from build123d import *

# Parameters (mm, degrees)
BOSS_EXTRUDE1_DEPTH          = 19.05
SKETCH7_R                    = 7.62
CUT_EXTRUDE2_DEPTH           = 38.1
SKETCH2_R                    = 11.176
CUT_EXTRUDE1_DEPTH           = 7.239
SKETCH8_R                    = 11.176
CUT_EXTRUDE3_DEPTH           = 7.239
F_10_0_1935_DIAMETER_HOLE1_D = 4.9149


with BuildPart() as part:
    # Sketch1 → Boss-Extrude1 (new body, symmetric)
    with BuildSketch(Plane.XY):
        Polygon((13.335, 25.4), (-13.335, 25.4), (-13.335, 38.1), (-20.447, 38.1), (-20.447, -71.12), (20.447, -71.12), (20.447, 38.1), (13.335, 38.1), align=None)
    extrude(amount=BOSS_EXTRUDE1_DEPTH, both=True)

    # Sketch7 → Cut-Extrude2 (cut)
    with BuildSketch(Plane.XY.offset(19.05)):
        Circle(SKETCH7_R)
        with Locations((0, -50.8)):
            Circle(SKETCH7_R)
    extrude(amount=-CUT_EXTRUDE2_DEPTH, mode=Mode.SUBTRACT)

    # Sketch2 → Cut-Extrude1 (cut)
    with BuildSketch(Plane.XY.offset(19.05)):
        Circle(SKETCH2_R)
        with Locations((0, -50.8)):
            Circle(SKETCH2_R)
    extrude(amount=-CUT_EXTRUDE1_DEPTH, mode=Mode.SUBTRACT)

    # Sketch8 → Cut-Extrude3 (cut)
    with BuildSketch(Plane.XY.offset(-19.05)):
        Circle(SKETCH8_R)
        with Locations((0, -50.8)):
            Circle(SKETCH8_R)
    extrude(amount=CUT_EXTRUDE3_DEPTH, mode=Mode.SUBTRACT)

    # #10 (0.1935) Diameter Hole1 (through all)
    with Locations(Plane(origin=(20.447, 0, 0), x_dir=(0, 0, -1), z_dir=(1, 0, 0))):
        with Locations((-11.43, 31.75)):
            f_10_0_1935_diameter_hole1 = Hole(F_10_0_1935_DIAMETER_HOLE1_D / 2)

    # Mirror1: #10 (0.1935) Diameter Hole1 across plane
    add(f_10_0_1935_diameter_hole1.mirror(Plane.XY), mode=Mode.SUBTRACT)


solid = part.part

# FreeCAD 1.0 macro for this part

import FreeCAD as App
import Part
import Sketcher
Q = App.Units.Quantity

doc = App.newDocument("Part")
params = doc.addObject("Spreadsheet::Sheet", "Params")
for row, (alias, value) in enumerate([
    ("sketch1_height", "0.5 in"),
    ("sketch1_height2", "4.3 in"),
    ("sketch1_width", "1.05 in"),
    ("sketch1_width2", "0.28 in"),
    ("pad1_length", "1.5 in"),
    ("sketch2_diameter", "0.6 in"),
    ("pocket1_length", "1.5 in"),
    ("sketch3_diameter", "0.88 in"),
    ("pocket2_length", "0.285 in"),
    ("sketch4_diameter", "0.88 in"),
    ("pocket3_length", "0.285 in"),
    ("hole_diameter", "0.1935 in"),
], start=1):
    params.set(f"A{row}", alias)
    params.set(f"B{row}", "=" + value)
    params.setAlias(f"B{row}", alias)

body = doc.addObject("PartDesign::Body", "Body")

# Sketch on XY plane
sketch1 = doc.addObject("Sketcher::SketchObject", "Sketch")
body.addObject(sketch1)
sketch1.AttachmentSupport = (doc.XY_Plane, [""])
sketch1.MapMode = "FlatFace"
sketch1.addGeometry(Part.LineSegment(App.Vector(13.335, 25.4, 0), App.Vector(-13.335, 25.4, 0)), False)
sketch1.addGeometry(Part.LineSegment(App.Vector(-13.335, 25.4, 0), App.Vector(-13.335, 38.1, 0)), False)
sketch1.addGeometry(Part.LineSegment(App.Vector(-13.335, 38.1, 0), App.Vector(-20.447, 38.1, 0)), False)
sketch1.addGeometry(Part.LineSegment(App.Vector(-20.447, 38.1, 0), App.Vector(-20.447, -71.12, 0)), False)
sketch1.addGeometry(Part.LineSegment(App.Vector(-20.447, -71.12, 0), App.Vector(20.447, -71.12, 0)), False)
sketch1.addGeometry(Part.LineSegment(App.Vector(20.447, -71.12, 0), App.Vector(20.447, 38.1, 0)), False)
sketch1.addGeometry(Part.LineSegment(App.Vector(20.447, 38.1, 0), App.Vector(13.335, 38.1, 0)), False)
sketch1.addGeometry(Part.LineSegment(App.Vector(13.335, 38.1, 0), App.Vector(13.335, 25.4, 0)), False)
sketch1.addConstraint(Sketcher.Constraint("Coincident", 0, 2, 1, 1))
sketch1.addConstraint(Sketcher.Constraint("Coincident", 1, 2, 2, 1))
sketch1.addConstraint(Sketcher.Constraint("Coincident", 2, 2, 3, 1))
sketch1.addConstraint(Sketcher.Constraint("Coincident", 3, 2, 4, 1))
sketch1.addConstraint(Sketcher.Constraint("Coincident", 4, 2, 5, 1))
sketch1.addConstraint(Sketcher.Constraint("Coincident", 5, 2, 6, 1))
sketch1.addConstraint(Sketcher.Constraint("Coincident", 6, 2, 7, 1))
sketch1.addConstraint(Sketcher.Constraint("Coincident", 7, 2, 0, 1))
sketch1.addConstraint(Sketcher.Constraint("Horizontal", 0))
sketch1.addConstraint(Sketcher.Constraint("Vertical", 1))
sketch1.addConstraint(Sketcher.Constraint("Horizontal", 2))
sketch1.addConstraint(Sketcher.Constraint("Vertical", 3))
sketch1.addConstraint(Sketcher.Constraint("Horizontal", 4))
sketch1.addConstraint(Sketcher.Constraint("Vertical", 5))
sketch1.addConstraint(Sketcher.Constraint("Horizontal", 6))
sketch1.addConstraint(Sketcher.Constraint("Vertical", 7))
sketch1.addConstraint(Sketcher.Constraint("Symmetric", 2, 2, 5, 2, -2))
sketch1.addConstraint(Sketcher.Constraint("Equal", 2, 6))
sketch1.addConstraint(Sketcher.Constraint("DistanceY", 1, 1, 1, 2, Q("0.5 in")))
sketch1.addConstraint(Sketcher.Constraint("DistanceY", 3, 2, 3, 1, Q("4.3 in")))
sketch1.addConstraint(Sketcher.Constraint("DistanceY", -1, 1, 0, 2, Q("1 in")))
sketch1.addConstraint(Sketcher.Constraint("DistanceX", 0, 2, 0, 1, Q("1.05 in")))
sketch1.addConstraint(Sketcher.Constraint("DistanceX", 2, 2, 2, 1, Q("0.28 in")))
sketch1.setExpression("Constraints[18]", "Params.sketch1_height")
sketch1.setExpression("Constraints[19]", "Params.sketch1_height2")
sketch1.setExpression("Constraints[21]", "Params.sketch1_width")
sketch1.setExpression("Constraints[22]", "Params.sketch1_width2")
pad1 = doc.addObject("PartDesign::Pad", "Pad")
body.addObject(pad1)
pad1.Profile = sketch1
pad1.setExpression("Length", "Params.pad1_length")
pad1.Midplane = True

# Sketch on XY plane
sketch2 = doc.addObject("Sketcher::SketchObject", "Sketch001")
body.addObject(sketch2)
sketch2.AttachmentSupport = (doc.XY_Plane, [""])
sketch2.MapMode = "FlatFace"
sketch2.AttachmentOffset = App.Placement(App.Vector(0, 0, 0.75 * 25.4), App.Rotation())
sketch2.addGeometry(Part.Circle(App.Vector(0, 0, 0), App.Vector(0, 0, 1), 7.62), False)
sketch2.addGeometry(Part.Circle(App.Vector(0, -50.8, 0), App.Vector(0, 0, 1), 7.62), False)
sketch2.addConstraint(Sketcher.Constraint("Coincident", 0, 3, -1, 1))
sketch2.addConstraint(Sketcher.Constraint("Equal", 0, 1))
sketch2.addConstraint(Sketcher.Constraint("PointOnObject", 1, 3, -2))
sketch2.addConstraint(Sketcher.Constraint("Diameter", 0, Q("0.6 in")))
sketch2.addConstraint(Sketcher.Constraint("DistanceY", 1, 3, -1, 1, Q("2 in")))
sketch2.setExpression("Constraints[3]", "Params.sketch2_diameter")
pocket1 = doc.addObject("PartDesign::Pocket", "Pocket")
body.addObject(pocket1)
pocket1.Profile = sketch2
pocket1.setExpression("Length", "Params.pocket1_length")

# Sketch on XY plane
sketch3 = doc.addObject("Sketcher::SketchObject", "Sketch002")
body.addObject(sketch3)
sketch3.AttachmentSupport = (doc.XY_Plane, [""])
sketch3.MapMode = "FlatFace"
sketch3.AttachmentOffset = App.Placement(App.Vector(0, 0, 0.75 * 25.4), App.Rotation())
sketch3.addGeometry(Part.Circle(App.Vector(0, 0, 0), App.Vector(0, 0, 1), 11.176), False)
sketch3.addGeometry(Part.Circle(App.Vector(0, -50.8, 0), App.Vector(0, 0, 1), 11.176), False)
sketch3.addConstraint(Sketcher.Constraint("Coincident", 0, 3, -1, 1))
sketch3.addConstraint(Sketcher.Constraint("Equal", 0, 1))
sketch3.addConstraint(Sketcher.Constraint("PointOnObject", 1, 3, -2))
sketch3.addConstraint(Sketcher.Constraint("Diameter", 0, Q("0.88 in")))
sketch3.addConstraint(Sketcher.Constraint("DistanceY", 1, 3, -1, 1, Q("2 in")))
sketch3.setExpression("Constraints[3]", "Params.sketch3_diameter")
pocket2 = doc.addObject("PartDesign::Pocket", "Pocket001")
body.addObject(pocket2)
pocket2.Profile = sketch3
pocket2.setExpression("Length", "Params.pocket2_length")

# Sketch on XY plane
sketch4 = doc.addObject("Sketcher::SketchObject", "Sketch003")
body.addObject(sketch4)
sketch4.AttachmentSupport = (doc.XY_Plane, [""])
sketch4.MapMode = "FlatFace"
sketch4.AttachmentOffset = App.Placement(App.Vector(0, 0, -0.75 * 25.4), App.Rotation())
sketch4.addGeometry(Part.Circle(App.Vector(0, 0, 0), App.Vector(0, 0, 1), 11.176), False)
sketch4.addGeometry(Part.Circle(App.Vector(0, -50.8, 0), App.Vector(0, 0, 1), 11.176), False)
sketch4.addConstraint(Sketcher.Constraint("Coincident", 0, 3, -1, 1))
sketch4.addConstraint(Sketcher.Constraint("Equal", 0, 1))
sketch4.addConstraint(Sketcher.Constraint("PointOnObject", 1, 3, -2))
sketch4.addConstraint(Sketcher.Constraint("Diameter", 0, Q("0.88 in")))
sketch4.addConstraint(Sketcher.Constraint("DistanceY", 1, 3, -1, 1, Q("2 in")))
sketch4.setExpression("Constraints[3]", "Params.sketch4_diameter")
pocket3 = doc.addObject("PartDesign::Pocket", "Pocket002")
body.addObject(pocket3)
pocket3.Profile = sketch4
pocket3.setExpression("Length", "Params.pocket3_length")
pocket3.Reversed = True

# Sketch on YZ plane
sketch5 = doc.addObject("Sketcher::SketchObject", "Sketch004")
body.addObject(sketch5)
sketch5.AttachmentSupport = (doc.YZ_Plane, [""])
sketch5.MapMode = "FlatFace"
sketch5.AttachmentOffset = App.Placement(App.Vector(0, 0, 0.805 * 25.4), App.Rotation())
sketch5.addGeometry(Part.Circle(App.Vector(31.75, 11.43, 0), App.Vector(0, 0, 1), 2.45745), False)
sketch5.addConstraint(Sketcher.Constraint("Diameter", 0, Q("0.1935 in")))
sketch5.addConstraint(Sketcher.Constraint("DistanceX", -1, 1, 0, 3, Q("1.25 in")))
sketch5.addConstraint(Sketcher.Constraint("DistanceY", -1, 1, 0, 3, Q("0.45 in")))
doc.recompute()
hole = doc.addObject("PartDesign::Hole", "Hole")
body.addObject(hole)
hole.Profile = sketch5
hole.ThreadType = "None"
hole.setExpression("Diameter", "Params.hole_diameter")
hole.DepthType = "ThroughAll"
doc.recompute()

mirrored = doc.addObject("PartDesign::Mirrored", "Mirrored")
body.addObject(mirrored)
mirrored.Originals = [hole]
mirrored.MirrorPlane = (doc.XY_Plane, [""])
body.Tip = mirrored

doc.recompute()
